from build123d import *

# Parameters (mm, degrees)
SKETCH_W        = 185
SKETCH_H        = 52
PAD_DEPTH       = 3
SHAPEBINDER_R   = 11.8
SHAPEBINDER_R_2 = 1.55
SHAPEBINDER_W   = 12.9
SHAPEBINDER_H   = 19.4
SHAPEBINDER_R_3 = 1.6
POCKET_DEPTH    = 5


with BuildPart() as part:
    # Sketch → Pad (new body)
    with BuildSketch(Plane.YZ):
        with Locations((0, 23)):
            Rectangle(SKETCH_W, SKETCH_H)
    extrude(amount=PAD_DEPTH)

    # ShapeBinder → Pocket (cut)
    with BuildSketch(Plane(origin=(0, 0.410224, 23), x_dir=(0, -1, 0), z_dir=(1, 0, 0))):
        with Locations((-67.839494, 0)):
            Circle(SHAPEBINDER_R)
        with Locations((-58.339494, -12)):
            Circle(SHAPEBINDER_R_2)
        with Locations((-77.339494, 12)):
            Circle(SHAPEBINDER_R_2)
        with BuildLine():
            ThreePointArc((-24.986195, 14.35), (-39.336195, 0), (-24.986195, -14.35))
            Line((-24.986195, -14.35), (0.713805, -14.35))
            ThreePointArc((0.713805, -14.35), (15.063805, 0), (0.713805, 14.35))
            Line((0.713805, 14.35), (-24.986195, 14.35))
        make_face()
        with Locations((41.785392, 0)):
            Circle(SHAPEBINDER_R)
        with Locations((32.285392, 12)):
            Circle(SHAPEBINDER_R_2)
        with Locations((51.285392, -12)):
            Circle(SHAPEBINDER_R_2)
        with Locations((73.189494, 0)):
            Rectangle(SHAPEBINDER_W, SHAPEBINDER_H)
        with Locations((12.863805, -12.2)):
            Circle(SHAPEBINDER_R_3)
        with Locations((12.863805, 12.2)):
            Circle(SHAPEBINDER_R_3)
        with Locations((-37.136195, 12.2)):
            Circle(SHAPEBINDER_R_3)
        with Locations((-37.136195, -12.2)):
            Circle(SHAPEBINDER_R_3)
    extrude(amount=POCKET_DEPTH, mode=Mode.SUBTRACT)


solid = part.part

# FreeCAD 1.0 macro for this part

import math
import FreeCAD as App
import Part
import Sketcher

V = App.Vector
Q = App.Units.Quantity


def add_polygon(sketch, points):
    """Adds a closed chain of lines whose ends are joined by coincident constraints."""
    first, n = sketch.GeometryCount, len(points)
    for a, b in zip(points, points[1:] + points[:1]):
        sketch.addGeometry(Part.LineSegment(App.Vector(*a, 0), App.Vector(*b, 0)), False)
    for i in range(n):
        sketch.addConstraint(Sketcher.Constraint("Coincident", first + i, 2, first + (i + 1) % n, 1))

doc = App.newDocument("Part")
body = doc.addObject("PartDesign::Body", "Body")

# Sketch on YZ plane
sketch1 = doc.addObject("Sketcher::SketchObject", "Sketch")
body.addObject(sketch1)
sketch1.AttachmentSupport = (doc.YZ_Plane, [""])
sketch1.MapMode = "FlatFace"
add_polygon(sketch1, [(-92, 49), (-92, -3), (92, -3), (92, 49)])  # lines 0-3
sketch1.addConstraint(Sketcher.Constraint("Vertical", 0))
sketch1.addConstraint(Sketcher.Constraint("Horizontal", 1))
sketch1.addConstraint(Sketcher.Constraint("Vertical", 2))
sketch1.addConstraint(Sketcher.Constraint("Horizontal", 3))
sketch1.addConstraint(Sketcher.Constraint("DistanceX", 1, 1, 1, 2, Q("185 mm")))
sketch1.addConstraint(Sketcher.Constraint("DistanceY", 0, 2, 0, 1, Q("52 mm")))
sketch1.addConstraint(Sketcher.Constraint("DistanceY", 0, 2, -1, 1, Q("3 mm")))
sketch1.addConstraint(Sketcher.Constraint("DistanceX", 0, 2, -1, 1, Q("92.5 mm")))
pad1 = doc.addObject("PartDesign::Pad", "Pad")
body.addObject(pad1)
pad1.Profile = sketch1
pad1.Length = 3

# Sketch on YZ plane
sketch2 = doc.addObject("Sketcher::SketchObject", "Sketch001")
body.addObject(sketch2)
sketch2.AttachmentSupport = (doc.YZ_Plane, [""])
sketch2.MapMode = "FlatFace"
sketch2.addGeometry(Part.Circle(V(68.2, 23, 0), V(0, 0, 1), 11.8), False)  # 0
sketch2.addGeometry(Part.Circle(V(58.7, 35, 0), V(0, 0, 1), 1.6), False)  # 1
sketch2.addGeometry(Part.Circle(V(77.7, 11, 0), V(0, 0, 1), 1.6), False)  # 2
sketch2.addGeometry(Part.ArcOfCircle(Part.Circle(V(25.4, 23, 0), V(0, 0, 1), 14.3), math.radians(-90), math.radians(90)), False)  # 3
sketch2.addGeometry(Part.LineSegment(V(25.4, 37.4, 0), V(-0.3, 37.4, 0)), False)  # 4
sketch2.addGeometry(Part.ArcOfCircle(Part.Circle(V(-0.3, 23, 0), V(0, 0, 1), 14.3), math.radians(90), math.radians(270)), False)  # 5
sketch2.addGeometry(Part.LineSegment(V(-0.3, 8.7, 0), V(25.4, 8.7, 0)), False)  # 6
sketch2.addGeometry(Part.Circle(V(-41.4, 23, 0), V(0, 0, 1), 11.8), False)  # 7
sketch2.addGeometry(Part.Circle(V(-31.9, 11, 0), V(0, 0, 1), 1.6), False)  # 8
sketch2.addGeometry(Part.Circle(V(-50.9, 35, 0), V(0, 0, 1), 1.6), False)  # 9
add_polygon(sketch2, [(-66.3, 13.3), (-66.3, 32.7), (-79.2, 32.7), (-79.2, 13.3)])  # lines 10-13
sketch2.addGeometry(Part.Circle(V(-12.5, 35.2, 0), V(0, 0, 1), 1.6), False)  # 14
sketch2.addGeometry(Part.Circle(V(-12.5, 10.8, 0), V(0, 0, 1), 1.6), False)  # 15
sketch2.addGeometry(Part.Circle(V(37.5, 10.8, 0), V(0, 0, 1), 1.6), False)  # 16
sketch2.addGeometry(Part.Circle(V(37.5, 35.2, 0), V(0, 0, 1), 1.6), False)  # 17
sketch2.addConstraint(Sketcher.Constraint("Tangent", 3, 2, 4, 1))
sketch2.addConstraint(Sketcher.Constraint("Tangent", 4, 2, 5, 1))
sketch2.addConstraint(Sketcher.Constraint("Tangent", 5, 2, 6, 1))
sketch2.addConstraint(Sketcher.Constraint("Tangent", 6, 2, 3, 1))
sketch2.addConstraint(Sketcher.Constraint("Horizontal", 4))
sketch2.addConstraint(Sketcher.Constraint("Horizontal", 6))
sketch2.addConstraint(Sketcher.Constraint("Vertical", 10))
sketch2.addConstraint(Sketcher.Constraint("Horizontal", 11))
sketch2.addConstraint(Sketcher.Constraint("Vertical", 12))
sketch2.addConstraint(Sketcher.Constraint("Horizontal", 13))
sketch2.addConstraint(Sketcher.Constraint("Equal", 1, 2))
sketch2.addConstraint(Sketcher.Constraint("Equal", 0, 7))
sketch2.addConstraint(Sketcher.Constraint("Equal", 2, 8))
sketch2.addConstraint(Sketcher.Constraint("Equal", 8, 9))
sketch2.addConstraint(Sketcher.Constraint("Equal", 14, 15))
sketch2.addConstraint(Sketcher.Constraint("Equal", 15, 16))
sketch2.addConstraint(Sketcher.Constraint("Equal", 16, 17))
sketch2.addConstraint(Sketcher.Constraint("Horizontal", 0, 3, 3, 3))
sketch2.addConstraint(Sketcher.Constraint("Horizontal", 5, 3, 7, 3))
sketch2.addConstraint(Sketcher.Constraint("Horizontal", 2, 3, 8, 3))
sketch2.addConstraint(Sketcher.Constraint("Horizontal", 1, 3, 9, 3))
sketch2.addConstraint(Sketcher.Constraint("Horizontal", 15, 3, 16, 3))
sketch2.addConstraint(Sketcher.Constraint("Horizontal", 14, 3, 17, 3))
sketch2.addConstraint(Sketcher.Constraint("Vertical", 14, 3, 15, 3))
sketch2.addConstraint(Sketcher.Constraint("Vertical", 16, 3, 17, 3))
sketch2.addConstraint(Sketcher.Constraint("Diameter", 0, Q("23.6 mm")))
sketch2.addConstraint(Sketcher.Constraint("Diameter", 1, Q("3.1 mm")))
sketch2.addConstraint(Sketcher.Constraint("Diameter", 14, Q("3.2 mm")))
sketch2.addConstraint(Sketcher.Constraint("Radius", 3, Q("14.35 mm")))
sketch2.addConstraint(Sketcher.Constraint("DistanceX", 4, 2, 4, 1, Q("25.7 mm")))
sketch2.addConstraint(Sketcher.Constraint("DistanceX", 11, 2, 11, 1, Q("12.9 mm")))
sketch2.addConstraint(Sketcher.Constraint("DistanceY", 10, 1, 10, 2, Q("19.4 mm")))
sketch2.addConstraint(Sketcher.Constraint("DistanceY", -1, 1, 0, 3, Q("23 mm")))
sketch2.addConstraint(Sketcher.Constraint("DistanceY", -1, 1, 1, 3, Q("35 mm")))
sketch2.addConstraint(Sketcher.Constraint("DistanceY", -1, 1, 2, 3, Q("11 mm")))
sketch2.addConstraint(Sketcher.Constraint("DistanceX", 1, 3, 2, 3, Q("19 mm")))
sketch2.addConstraint(Sketcher.Constraint("DistanceX", 9, 3, 8, 3, Q("19 mm")))
sketch2.addConstraint(Sketcher.Constraint("DistanceY", -1, 1, 14, 3, Q("35.2 mm")))
sketch2.addConstraint(Sketcher.Constraint("DistanceY", -1, 1, 15, 3, Q("10.8 mm")))
sketch2.addConstraint(Sketcher.Constraint("DistanceY", -1, 1, 10, 2, Q("32.7 mm")))
sketch2.addConstraint(Sketcher.Constraint("DistanceX", 1, 3, 0, 3, Q("9.5 mm")))
sketch2.addConstraint(Sketcher.Constraint("DistanceX", 7, 3, 8, 3, Q("9.5 mm")))
sketch2.addConstraint(Sketcher.Constraint("DistanceX", 14, 3, 5, 3, Q("12.15 mm")))
sketch2.addConstraint(Sketcher.Constraint("DistanceX", 3, 3, 16, 3, Q("12.15 mm")))
sketch2.addConstraint(Sketcher.Constraint("DistanceX", 3, 3, 1, 3, Q("33.353299 mm")))
sketch2.addConstraint(Sketcher.Constraint("DistanceX", 10, 2, 9, 3, Q("15.454102 mm")))
sketch2.addConstraint(Sketcher.Constraint("DistanceX", -1, 1, 0, 3, Q("68.249718 mm")))
sketch2.addConstraint(Sketcher.Constraint("DistanceX", 7, 3, -1, 1, Q("41.375168 mm")))
pocket1 = doc.addObject("PartDesign::Pocket", "Pocket")
body.addObject(pocket1)
pocket1.Profile = sketch2
pocket1.Length = 5
pocket1.Reversed = True

doc.recompute()
